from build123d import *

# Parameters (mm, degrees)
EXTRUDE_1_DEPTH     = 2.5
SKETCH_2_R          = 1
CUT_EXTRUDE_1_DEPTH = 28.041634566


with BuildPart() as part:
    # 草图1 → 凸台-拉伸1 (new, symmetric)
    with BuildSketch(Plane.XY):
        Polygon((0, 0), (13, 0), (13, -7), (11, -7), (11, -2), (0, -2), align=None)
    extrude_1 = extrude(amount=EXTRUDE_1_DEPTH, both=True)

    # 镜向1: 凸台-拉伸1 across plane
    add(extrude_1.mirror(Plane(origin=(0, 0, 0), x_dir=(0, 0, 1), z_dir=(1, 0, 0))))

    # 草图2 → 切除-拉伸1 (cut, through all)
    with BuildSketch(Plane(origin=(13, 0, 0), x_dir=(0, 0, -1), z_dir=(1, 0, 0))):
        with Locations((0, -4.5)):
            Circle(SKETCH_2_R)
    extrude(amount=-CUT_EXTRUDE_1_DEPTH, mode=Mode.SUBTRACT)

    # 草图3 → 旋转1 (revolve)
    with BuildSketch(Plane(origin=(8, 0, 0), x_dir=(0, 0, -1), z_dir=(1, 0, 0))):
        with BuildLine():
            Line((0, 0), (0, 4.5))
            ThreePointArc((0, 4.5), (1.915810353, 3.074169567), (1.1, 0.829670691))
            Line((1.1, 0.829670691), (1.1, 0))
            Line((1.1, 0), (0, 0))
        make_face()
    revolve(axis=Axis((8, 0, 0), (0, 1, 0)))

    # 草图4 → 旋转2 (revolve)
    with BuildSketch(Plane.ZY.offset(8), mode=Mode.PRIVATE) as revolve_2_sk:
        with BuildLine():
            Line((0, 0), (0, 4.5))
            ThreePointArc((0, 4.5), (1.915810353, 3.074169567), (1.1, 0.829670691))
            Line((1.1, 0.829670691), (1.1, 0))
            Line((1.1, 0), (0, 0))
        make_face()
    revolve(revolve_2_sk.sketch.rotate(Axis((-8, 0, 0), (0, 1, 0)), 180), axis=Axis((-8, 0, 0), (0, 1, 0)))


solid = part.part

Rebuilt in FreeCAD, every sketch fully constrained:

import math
import FreeCAD as App
import Part
import Sketcher

V = App.Vector


def add_polygon(sketch, points):
    """Adds a closed chain of lines whose ends are joined by coincident constraints."""
    first, n = sketch.GeometryCount, len(points)
    for a, b in zip(points, points[1:] + points[:1]):
        sketch.addGeometry(Part.LineSegment(App.Vector(*a, 0), App.Vector(*b, 0)), False)
    for i in range(n):
        sketch.addConstraint(Sketcher.Constraint("Coincident", first + i, 2, first + (i + 1) % n, 1))

doc = App.newDocument("Part")
body = doc.addObject("PartDesign::Body", "Body")

# Sketch on XY plane
sketch1 = body.newObject("Sketcher::SketchObject", "Sketch")
sketch1.AttachmentSupport = (doc.getObject("XY_Plane"), [""])
sketch1.MapMode = "FlatFace"
add_polygon(sketch1, [(13, 0), (0, 0), (0, -2), (11, -2), (11, -7), (13, -7)])  # lines 0-5
sketch1.addConstraint(Sketcher.Constraint("Horizontal", 0))
sketch1.addConstraint(Sketcher.Constraint("Vertical", 1))
sketch1.addConstraint(Sketcher.Constraint("Horizontal", 2))
sketch1.addConstraint(Sketcher.Constraint("Vertical", 3))
sketch1.addConstraint(Sketcher.Constraint("Horizontal", 4))
sketch1.addConstraint(Sketcher.Constraint("Vertical", 5))
sketch1.addConstraint(Sketcher.Constraint("Coincident", 0, 2, -1, 1))
sketch1.addConstraint(Sketcher.Constraint("Equal", 4, 1))
sketch1.addConstraint(Sketcher.Constraint("DistanceX", 0, 2, 0, 1, 13.0))
sketch1.addConstraint(Sketcher.Constraint("DistanceX", 2, 1, 2, 2, 11.0))
sketch1.addConstraint(Sketcher.Constraint("DistanceY", 3, 2, 3, 1, 5.0))
pad1 = body.newObject("PartDesign::Pad", "Pad")
pad1.Profile = sketch1
pad1.Length = 5
pad1.Midplane = True
doc.recompute()

mirrored = body.newObject("PartDesign::Mirrored", "Mirrored")
mirrored.Originals = [pad1]
mirrored.MirrorPlane = (doc.getObject("YZ_Plane"), [""])
body.Tip = mirrored

# Sketch on YZ plane
sketch2 = body.newObject("Sketcher::SketchObject", "Sketch001")
sketch2.AttachmentSupport = (doc.getObject("YZ_Plane"), [""])
sketch2.MapMode = "FlatFace"
sketch2.AttachmentOffset = App.Placement(V(0, 0, 13), App.Rotation())
sketch2.addGeometry(Part.Circle(V(-4.5, 0, 0), V(0, 0, 1), 1), False)
sketch2.addConstraint(Sketcher.Constraint("PointOnObject", 0, 3, -1))
sketch2.addConstraint(Sketcher.Constraint("Diameter", 0, 2.0))
sketch2.addConstraint(Sketcher.Constraint("DistanceX", 0, 3, -1, 1, 4.5))
pocket1 = body.newObject("PartDesign::Pocket", "Pocket")
pocket1.Profile = sketch2
pocket1.Type = "ThroughAll"

# Sketch on YZ plane
sketch3 = body.newObject("Sketcher::SketchObject", "Sketch002")
sketch3.AttachmentSupport = (doc.getObject("YZ_Plane"), [""])
sketch3.MapMode = "FlatFace"
sketch3.AttachmentOffset = App.Placement(V(0, 0, 8), App.Rotation())
sketch3.addGeometry(Part.LineSegment(V(4.5, 0, 0), V(0, 0, 0)), False)
sketch3.addGeometry(Part.LineSegment(V(0, 0, 0), V(0, -1.1, 0)), False)
sketch3.addGeometry(Part.LineSegment(V(0, -1.1, 0), V(0.8, -1.1, 0)), False)
sketch3.addGeometry(Part.ArcOfCircle(Part.Circle(V(2.5, 0, 0), V(0, 0, 1), 2), math.radians(-147), math.radians(0)), False)
sketch3.addConstraint(Sketcher.Constraint("Coincident", 0, 2, 1, 1))
sketch3.addConstraint(Sketcher.Constraint("Coincident", 1, 2, 2, 1))
sketch3.addConstraint(Sketcher.Constraint("Coincident", 2, 2, 3, 1))
sketch3.addConstraint(Sketcher.Constraint("Coincident", 3, 2, 0, 1))
sketch3.addConstraint(Sketcher.Constraint("Horizontal", 0))
sketch3.addConstraint(Sketcher.Constraint("Vertical", 1))
sketch3.addConstraint(Sketcher.Constraint("Horizontal", 2))
sketch3.addConstraint(Sketcher.Constraint("Coincident", 0, 2, -1, 1))
sketch3.addConstraint(Sketcher.Constraint("PointOnObject", 3, 3, -1))
sketch3.addConstraint(Sketcher.Constraint("Radius", 3, 2.0))
sketch3.addConstraint(Sketcher.Constraint("DistanceX", 0, 2, 0, 1, 4.5))
sketch3.addConstraint(Sketcher.Constraint("DistanceY", 1, 2, 1, 1, 1.1))
revolution = body.newObject("PartDesign::Revolution", "Revolution")
revolution.Profile = sketch3
revolution.ReferenceAxis = (sketch3, ["H_Axis"])
revolution.Angle = 360

# Sketch on YZ plane
sketch4 = body.newObject("Sketcher::SketchObject", "Sketch003")
sketch4.AttachmentSupport = (doc.getObject("YZ_Plane"), [""])
sketch4.MapMode = "FlatFace"
sketch4.AttachmentOffset = App.Placement(V(0, 0, -8), App.Rotation())
sketch4.addGeometry(Part.LineSegment(V(4.5, 0, 0), V(0, 0, 0)), False)
sketch4.addGeometry(Part.LineSegment(V(0, 0, 0), V(0, 1.1, 0)), False)
sketch4.addGeometry(Part.LineSegment(V(0, 1.1, 0), V(0.8, 1.1, 0)), False)
sketch4.addGeometry(Part.ArcOfCircle(Part.Circle(V(2.5, 0, 0), V(0, 0, 1), 2), math.radians(0), math.radians(147)), False)
sketch4.addConstraint(Sketcher.Constraint("Coincident", 0, 2, 1, 1))
sketch4.addConstraint(Sketcher.Constraint("Coincident", 1, 2, 2, 1))
sketch4.addConstraint(Sketcher.Constraint("Coincident", 2, 2, 3, 2))
sketch4.addConstraint(Sketcher.Constraint("Coincident", 3, 1, 0, 1))
sketch4.addConstraint(Sketcher.Constraint("Horizontal", 0))
sketch4.addConstraint(Sketcher.Constraint("Vertical", 1))
sketch4.addConstraint(Sketcher.Constraint("Horizontal", 2))
sketch4.addConstraint(Sketcher.Constraint("Coincident", 0, 2, -1, 1))
sketch4.addConstraint(Sketcher.Constraint("PointOnObject", 3, 3, -1))
sketch4.addConstraint(Sketcher.Constraint("Radius", 3, 2.0))
sketch4.addConstraint(Sketcher.Constraint("DistanceX", 0, 2, 0, 1, 4.5))
sketch4.addConstraint(Sketcher.Constraint("DistanceY", 1, 1, 1, 2, 1.1))
revolution2 = body.newObject("PartDesign::Revolution", "Revolution001")
revolution2.Profile = sketch4
revolution2.ReferenceAxis = (sketch4, ["H_Axis"])
revolution2.Angle = 360

doc.recompute()
